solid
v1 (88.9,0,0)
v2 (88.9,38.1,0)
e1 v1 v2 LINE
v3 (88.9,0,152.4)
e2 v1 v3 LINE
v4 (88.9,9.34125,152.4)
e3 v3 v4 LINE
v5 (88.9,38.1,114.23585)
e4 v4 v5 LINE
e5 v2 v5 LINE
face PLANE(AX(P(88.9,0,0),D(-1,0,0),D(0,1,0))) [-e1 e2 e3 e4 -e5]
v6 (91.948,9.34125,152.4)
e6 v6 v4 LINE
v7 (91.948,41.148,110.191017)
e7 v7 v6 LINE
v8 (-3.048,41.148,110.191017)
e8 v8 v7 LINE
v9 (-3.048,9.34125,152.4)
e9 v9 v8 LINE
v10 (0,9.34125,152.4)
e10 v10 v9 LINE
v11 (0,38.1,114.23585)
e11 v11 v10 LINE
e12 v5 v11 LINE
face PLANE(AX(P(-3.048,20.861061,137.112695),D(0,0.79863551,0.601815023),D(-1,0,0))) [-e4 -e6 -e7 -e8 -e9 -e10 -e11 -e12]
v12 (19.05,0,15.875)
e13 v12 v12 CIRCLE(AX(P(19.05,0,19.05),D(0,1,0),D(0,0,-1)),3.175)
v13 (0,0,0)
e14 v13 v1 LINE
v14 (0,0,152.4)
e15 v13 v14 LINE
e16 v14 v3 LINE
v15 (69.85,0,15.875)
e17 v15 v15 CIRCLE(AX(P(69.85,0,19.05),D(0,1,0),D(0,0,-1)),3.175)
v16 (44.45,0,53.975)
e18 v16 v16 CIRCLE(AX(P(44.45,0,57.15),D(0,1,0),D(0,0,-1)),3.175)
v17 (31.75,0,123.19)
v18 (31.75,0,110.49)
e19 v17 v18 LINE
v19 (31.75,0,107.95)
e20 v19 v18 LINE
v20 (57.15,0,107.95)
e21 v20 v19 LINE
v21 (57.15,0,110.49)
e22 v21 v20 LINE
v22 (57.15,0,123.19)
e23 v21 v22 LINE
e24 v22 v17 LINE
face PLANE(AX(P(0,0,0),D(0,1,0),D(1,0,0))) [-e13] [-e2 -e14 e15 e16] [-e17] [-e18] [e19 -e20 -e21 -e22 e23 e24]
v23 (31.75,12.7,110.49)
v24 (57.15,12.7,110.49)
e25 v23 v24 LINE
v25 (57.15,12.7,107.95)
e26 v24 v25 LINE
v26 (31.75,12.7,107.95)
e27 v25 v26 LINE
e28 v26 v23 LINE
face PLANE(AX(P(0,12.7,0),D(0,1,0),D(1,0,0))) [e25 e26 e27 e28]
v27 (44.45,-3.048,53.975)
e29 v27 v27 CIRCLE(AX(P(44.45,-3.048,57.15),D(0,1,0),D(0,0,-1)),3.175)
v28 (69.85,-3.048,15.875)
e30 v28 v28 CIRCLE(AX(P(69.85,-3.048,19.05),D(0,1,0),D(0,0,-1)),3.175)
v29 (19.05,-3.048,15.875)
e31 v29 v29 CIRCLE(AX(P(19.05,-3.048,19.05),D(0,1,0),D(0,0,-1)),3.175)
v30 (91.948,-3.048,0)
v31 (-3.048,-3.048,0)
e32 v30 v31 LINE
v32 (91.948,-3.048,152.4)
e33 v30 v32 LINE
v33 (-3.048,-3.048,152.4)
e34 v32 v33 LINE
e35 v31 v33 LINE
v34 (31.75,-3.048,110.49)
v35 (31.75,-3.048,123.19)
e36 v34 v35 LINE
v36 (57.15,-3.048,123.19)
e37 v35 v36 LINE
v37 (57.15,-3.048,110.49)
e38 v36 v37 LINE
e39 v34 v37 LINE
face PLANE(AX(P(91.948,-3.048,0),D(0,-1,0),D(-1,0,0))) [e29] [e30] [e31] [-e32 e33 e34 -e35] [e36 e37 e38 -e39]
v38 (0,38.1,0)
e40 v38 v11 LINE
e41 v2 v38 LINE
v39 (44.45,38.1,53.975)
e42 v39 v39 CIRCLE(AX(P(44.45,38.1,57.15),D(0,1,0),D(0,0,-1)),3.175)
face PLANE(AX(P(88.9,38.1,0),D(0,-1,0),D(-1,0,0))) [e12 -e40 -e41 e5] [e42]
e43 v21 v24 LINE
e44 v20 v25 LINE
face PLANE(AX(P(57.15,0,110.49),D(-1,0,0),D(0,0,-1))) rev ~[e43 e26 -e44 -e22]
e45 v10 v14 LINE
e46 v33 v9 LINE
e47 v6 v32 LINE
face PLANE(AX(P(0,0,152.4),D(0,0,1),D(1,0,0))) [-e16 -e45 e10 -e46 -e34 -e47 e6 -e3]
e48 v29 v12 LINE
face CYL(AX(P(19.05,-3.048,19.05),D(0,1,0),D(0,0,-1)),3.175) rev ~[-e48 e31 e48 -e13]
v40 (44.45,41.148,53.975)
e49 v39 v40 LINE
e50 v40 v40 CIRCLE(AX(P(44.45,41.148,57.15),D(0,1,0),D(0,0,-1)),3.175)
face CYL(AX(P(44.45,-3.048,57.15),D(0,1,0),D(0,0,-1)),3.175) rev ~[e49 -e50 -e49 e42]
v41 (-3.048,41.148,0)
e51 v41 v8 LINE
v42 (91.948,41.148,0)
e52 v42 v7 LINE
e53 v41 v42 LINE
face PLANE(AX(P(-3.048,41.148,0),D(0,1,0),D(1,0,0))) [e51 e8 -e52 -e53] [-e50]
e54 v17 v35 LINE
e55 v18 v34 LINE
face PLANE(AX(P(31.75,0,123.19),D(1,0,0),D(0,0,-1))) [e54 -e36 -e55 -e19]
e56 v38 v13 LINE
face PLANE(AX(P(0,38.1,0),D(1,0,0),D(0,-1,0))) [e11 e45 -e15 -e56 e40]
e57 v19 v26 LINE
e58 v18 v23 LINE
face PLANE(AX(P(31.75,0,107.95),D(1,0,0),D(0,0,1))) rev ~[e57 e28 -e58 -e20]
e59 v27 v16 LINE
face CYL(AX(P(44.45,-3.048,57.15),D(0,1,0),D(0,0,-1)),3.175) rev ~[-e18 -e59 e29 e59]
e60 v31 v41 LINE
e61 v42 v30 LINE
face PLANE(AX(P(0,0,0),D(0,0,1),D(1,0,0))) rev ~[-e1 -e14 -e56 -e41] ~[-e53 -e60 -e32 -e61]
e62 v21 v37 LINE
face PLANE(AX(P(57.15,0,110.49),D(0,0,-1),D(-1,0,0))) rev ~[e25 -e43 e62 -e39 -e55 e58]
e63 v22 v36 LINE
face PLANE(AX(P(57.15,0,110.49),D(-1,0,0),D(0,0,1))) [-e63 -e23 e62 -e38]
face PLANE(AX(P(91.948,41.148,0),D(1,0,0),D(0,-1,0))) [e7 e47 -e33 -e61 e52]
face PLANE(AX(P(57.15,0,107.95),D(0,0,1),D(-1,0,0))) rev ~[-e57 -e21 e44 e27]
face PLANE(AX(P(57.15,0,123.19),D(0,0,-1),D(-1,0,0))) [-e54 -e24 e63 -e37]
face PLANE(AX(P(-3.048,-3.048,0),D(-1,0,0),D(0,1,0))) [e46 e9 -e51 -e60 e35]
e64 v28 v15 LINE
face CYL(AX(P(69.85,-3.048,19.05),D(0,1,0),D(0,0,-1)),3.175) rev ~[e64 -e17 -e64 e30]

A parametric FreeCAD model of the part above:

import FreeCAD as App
import Part
import Sketcher
from FreeCAD import Vector
Q = App.Units.Quantity

doc = App.newDocument("Part")
body = doc.addObject("PartDesign::Body", "Body")

# Sketch on XY plane
sketch1 = body.newObject("Sketcher::SketchObject", "Sketch")
sketch1.AttachmentSupport = (doc.getObject("XY_Plane"), [""])
sketch1.MapMode = "FlatFace"
sketch1.addGeometry([
    Part.LineSegment(Vector(92, 41, 0), Vector(-3, 41, 0)),  # 0
    Part.LineSegment(Vector(-3, 41, 0), Vector(-3, -3, 0)),  # 1
    Part.LineSegment(Vector(-3, -3, 0), Vector(92, -3, 0)),  # 2
    Part.LineSegment(Vector(92, -3, 0), Vector(92, 41, 0)),  # 3
    Part.LineSegment(Vector(89, 0, 0), Vector(0, 0, 0)),  # 4
    Part.LineSegment(Vector(0, 0, 0), Vector(0, 38, 0)),  # 5
    Part.LineSegment(Vector(0, 38, 0), Vector(89, 38, 0)),  # 6
    Part.LineSegment(Vector(89, 38, 0), Vector(89, 0, 0)),  # 7
], False)
sketch1.addConstraint([
    Sketcher.Constraint("Coincident", 0, 2, 1, 1),
    Sketcher.Constraint("Coincident", 1, 2, 2, 1),
    Sketcher.Constraint("Coincident", 2, 2, 3, 1),
    Sketcher.Constraint("Coincident", 3, 2, 0, 1),
    Sketcher.Constraint("Coincident", 4, 2, 5, 1),
    Sketcher.Constraint("Coincident", 5, 2, 6, 1),
    Sketcher.Constraint("Coincident", 6, 2, 7, 1),
    Sketcher.Constraint("Coincident", 7, 2, 4, 1),
    Sketcher.Constraint("Horizontal", 0),
    Sketcher.Constraint("Vertical", 1),
    Sketcher.Constraint("Horizontal", 2),
    Sketcher.Constraint("Vertical", 3),
    Sketcher.Constraint("Horizontal", 4),
    Sketcher.Constraint("Vertical", 5),
    Sketcher.Constraint("Horizontal", 6),
    Sketcher.Constraint("Vertical", 7),
    Sketcher.Constraint("Coincident", 4, 2, -1, 1),
    Sketcher.Constraint("DistanceX", 4, 2, 4, 1, Q("3.5 in")),
    Sketcher.Constraint("DistanceY", 5, 1, 5, 2, Q("1.5 in")),
    Sketcher.Constraint("DistanceX", 0, 2, -1, 1, Q("0.12 in")),
    Sketcher.Constraint("DistanceY", 1, 2, -1, 1, Q("0.12 in")),
    Sketcher.Constraint("DistanceY", 5, 2, 0, 2, Q("0.12 in")),
    Sketcher.Constraint("DistanceX", 6, 2, 3, 2, Q("0.12 in")),
])
pad1 = body.newObject("PartDesign::Pad", "Pad")
pad1.Profile = sketch1
pad1.Length = Q("6 in")

# Sketch on an angled plane
sketch2 = body.newObject("Sketcher::SketchObject", "Sketch001")
sketch2.Placement = App.Placement(Vector(-3.048, 41.148, 152.4), App.Rotation(Vector(-1, 0, 0), Vector(0, -0.601815023, 0.79863551), Vector(0, 0.79863551, 0.601815023), "ZXY"))
sketch2.addGeometry([
    Part.LineSegment(Vector(65, 78, 0), Vector(-144, 78, 0)),
    Part.LineSegment(Vector(-144, 78, 0), Vector(-144, -49, 0)),
    Part.LineSegment(Vector(-144, -49, 0), Vector(65, -49, 0)),
    Part.LineSegment(Vector(65, -49, 0), Vector(65, 78, 0)),
], False)
sketch2.addConstraint([
    Sketcher.Constraint("Coincident", 0, 2, 1, 1),
    Sketcher.Constraint("Coincident", 1, 2, 2, 1),
    Sketcher.Constraint("Coincident", 2, 2, 3, 1),
    Sketcher.Constraint("Coincident", 3, 2, 0, 1),
    Sketcher.Constraint("Horizontal", 0),
    Sketcher.Constraint("Vertical", 1),
    Sketcher.Constraint("Horizontal", 2),
    Sketcher.Constraint("Vertical", 3),
    Sketcher.Constraint("DistanceY", 1, 2, 1, 1, Q("5 in")),
    Sketcher.Constraint("DistanceX", 0, 2, 0, 1, Q("8.25 in")),
    Sketcher.Constraint("DistanceX", 0, 2, -1, 1, Q("5.6875 in")),
    Sketcher.Constraint("DistanceY", -1, 1, 0, 2, Q("3.0625 in")),
])
pocket1 = body.newObject("PartDesign::Pocket", "Pocket")
pocket1.Profile = sketch2
pocket1.Length = Q("1 in")

# Sketch on XZ plane
sketch3 = body.newObject("Sketcher::SketchObject", "Sketch002")
sketch3.AttachmentSupport = (doc.getObject("XZ_Plane"), [""])
sketch3.MapMode = "FlatFace"
sketch3.addGeometry([
    Part.LineSegment(Vector(31.8, 108, 0), Vector(31.8, 110.5, 0)),
    Part.LineSegment(Vector(31.8, 110.5, 0), Vector(57.1, 110.5, 0)),
    Part.LineSegment(Vector(57.1, 110.5, 0), Vector(57.1, 108, 0)),
    Part.LineSegment(Vector(57.1, 108, 0), Vector(31.8, 108, 0)),
], False)
sketch3.addConstraint([
    Sketcher.Constraint("Coincident", 0, 2, 1, 1),
    Sketcher.Constraint("Coincident", 1, 2, 2, 1),
    Sketcher.Constraint("Coincident", 2, 2, 3, 1),
    Sketcher.Constraint("Coincident", 3, 2, 0, 1),
    Sketcher.Constraint("Vertical", 0),
    Sketcher.Constraint("Horizontal", 1),
    Sketcher.Constraint("Vertical", 2),
    Sketcher.Constraint("Horizontal", 3),
    Sketcher.Constraint("DistanceX", 1, 1, 1, 2, Q("1 in")),
    Sketcher.Constraint("DistanceY", 0, 1, 0, 2, Q("0.1 in")),
    Sketcher.Constraint("DistanceX", -1, 1, 0, 2, Q("1.25 in")),
    Sketcher.Constraint("DistanceY", -1, 1, 0, 2, Q("4.35 in")),
])
pad2 = body.newObject("PartDesign::Pad", "Pad001")
pad2.Profile = sketch3
pad2.Length = Q("0.5 in")
pad2.Reversed = True

# Sketch on XZ plane
sketch4 = body.newObject("Sketcher::SketchObject", "Sketch003")
sketch4.AttachmentSupport = (doc.getObject("XZ_Plane"), [""])
sketch4.MapMode = "FlatFace"
sketch4.addGeometry([
    Part.LineSegment(Vector(57, 123, 0), Vector(57, 110, 0)),
    Part.LineSegment(Vector(57, 110, 0), Vector(32, 110, 0)),
    Part.LineSegment(Vector(32, 110, 0), Vector(32, 123, 0)),
    Part.LineSegment(Vector(32, 123, 0), Vector(57, 123, 0)),
], False)
sketch4.addConstraint([
    Sketcher.Constraint("Coincident", 0, 2, 1, 1),
    Sketcher.Constraint("Coincident", 1, 2, 2, 1),
    Sketcher.Constraint("Coincident", 2, 2, 3, 1),
    Sketcher.Constraint("Coincident", 3, 2, 0, 1),
    Sketcher.Constraint("Vertical", 0),
    Sketcher.Constraint("Horizontal", 1),
    Sketcher.Constraint("Vertical", 2),
    Sketcher.Constraint("Horizontal", 3),
    Sketcher.Constraint("DistanceX", 1, 2, 1, 1, Q("1 in")),
    Sketcher.Constraint("DistanceY", 0, 2, 0, 1, Q("0.5 in")),
    Sketcher.Constraint("DistanceX", -1, 1, 0, 2, Q("2.25 in")),
    Sketcher.Constraint("DistanceY", -1, 1, 0, 2, Q("4.35 in")),
])
pocket2 = body.newObject("PartDesign::Pocket", "Pocket001")
pocket2.Profile = sketch4
pocket2.Length = Q("1 in")
pocket2.Reversed = True

# Sketch on XZ plane
sketch5 = body.newObject("Sketcher::SketchObject", "Sketch004")
sketch5.AttachmentSupport = (doc.getObject("XZ_Plane"), [""])
sketch5.MapMode = "FlatFace"
sketch5.AttachmentOffset = App.Placement(Vector(0, 0, 0.12 * 25.4), App.Rotation())
sketch5.addGeometry([
    Part.Circle(Vector(19.1, 19.1, 0), Vector(0, 0, 1), 3.2),
    Part.Circle(Vector(69.8, 19.1, 0), Vector(0, 0, 1), 3.2),
], False)
sketch5.addConstraint([
    Sketcher.Constraint("Equal", 0, 1),
    Sketcher.Constraint("Horizontal", 0, 3, 1, 3),
    Sketcher.Constraint("Diameter", 0, Q("0.25 in")),
    Sketcher.Constraint("DistanceX", 0, 3, 1, 3, Q("2 in")),
    Sketcher.Constraint("DistanceX", -1, 1, 0, 3, Q("0.75 in")),
    Sketcher.Constraint("DistanceY", -1, 1, 0, 3, Q("0.75 in")),
])
doc.recompute()
hole = body.newObject("PartDesign::Hole", "Hole")
hole.Profile = sketch5
hole.ThreadType = "None"
hole.Diameter = Q("0.25 in")
hole.DepthType = "Dimension"
hole.Depth = Q("1 in")
hole.DrillPoint = "Angled"
hole.DrillPointAngle = 118

# Sketch on XZ plane
sketch6 = body.newObject("Sketcher::SketchObject", "Sketch005")
sketch6.AttachmentSupport = (doc.getObject("XZ_Plane"), [""])
sketch6.MapMode = "FlatFace"
sketch6.AttachmentOffset = App.Placement(Vector(0, 0, 0.12 * 25.4), App.Rotation())
sketch6.addGeometry(Part.Circle(Vector(44.5, 57.1, 0), Vector(0, 0, 1), 3.2), False)
sketch6.addConstraint([
    Sketcher.Constraint("Diameter", 0, Q("0.25 in")),
    Sketcher.Constraint("DistanceX", -1, 1, 0, 3, Q("1.75 in")),
    Sketcher.Constraint("DistanceY", -1, 1, 0, 3, Q("2.25 in")),
])
doc.recompute()
hole2 = body.newObject("PartDesign::Hole", "Hole001")
hole2.Profile = sketch6
hole2.ThreadType = "None"
hole2.Diameter = Q("0.25 in")
hole2.DepthType = "ThroughAll"

doc.recompute()
